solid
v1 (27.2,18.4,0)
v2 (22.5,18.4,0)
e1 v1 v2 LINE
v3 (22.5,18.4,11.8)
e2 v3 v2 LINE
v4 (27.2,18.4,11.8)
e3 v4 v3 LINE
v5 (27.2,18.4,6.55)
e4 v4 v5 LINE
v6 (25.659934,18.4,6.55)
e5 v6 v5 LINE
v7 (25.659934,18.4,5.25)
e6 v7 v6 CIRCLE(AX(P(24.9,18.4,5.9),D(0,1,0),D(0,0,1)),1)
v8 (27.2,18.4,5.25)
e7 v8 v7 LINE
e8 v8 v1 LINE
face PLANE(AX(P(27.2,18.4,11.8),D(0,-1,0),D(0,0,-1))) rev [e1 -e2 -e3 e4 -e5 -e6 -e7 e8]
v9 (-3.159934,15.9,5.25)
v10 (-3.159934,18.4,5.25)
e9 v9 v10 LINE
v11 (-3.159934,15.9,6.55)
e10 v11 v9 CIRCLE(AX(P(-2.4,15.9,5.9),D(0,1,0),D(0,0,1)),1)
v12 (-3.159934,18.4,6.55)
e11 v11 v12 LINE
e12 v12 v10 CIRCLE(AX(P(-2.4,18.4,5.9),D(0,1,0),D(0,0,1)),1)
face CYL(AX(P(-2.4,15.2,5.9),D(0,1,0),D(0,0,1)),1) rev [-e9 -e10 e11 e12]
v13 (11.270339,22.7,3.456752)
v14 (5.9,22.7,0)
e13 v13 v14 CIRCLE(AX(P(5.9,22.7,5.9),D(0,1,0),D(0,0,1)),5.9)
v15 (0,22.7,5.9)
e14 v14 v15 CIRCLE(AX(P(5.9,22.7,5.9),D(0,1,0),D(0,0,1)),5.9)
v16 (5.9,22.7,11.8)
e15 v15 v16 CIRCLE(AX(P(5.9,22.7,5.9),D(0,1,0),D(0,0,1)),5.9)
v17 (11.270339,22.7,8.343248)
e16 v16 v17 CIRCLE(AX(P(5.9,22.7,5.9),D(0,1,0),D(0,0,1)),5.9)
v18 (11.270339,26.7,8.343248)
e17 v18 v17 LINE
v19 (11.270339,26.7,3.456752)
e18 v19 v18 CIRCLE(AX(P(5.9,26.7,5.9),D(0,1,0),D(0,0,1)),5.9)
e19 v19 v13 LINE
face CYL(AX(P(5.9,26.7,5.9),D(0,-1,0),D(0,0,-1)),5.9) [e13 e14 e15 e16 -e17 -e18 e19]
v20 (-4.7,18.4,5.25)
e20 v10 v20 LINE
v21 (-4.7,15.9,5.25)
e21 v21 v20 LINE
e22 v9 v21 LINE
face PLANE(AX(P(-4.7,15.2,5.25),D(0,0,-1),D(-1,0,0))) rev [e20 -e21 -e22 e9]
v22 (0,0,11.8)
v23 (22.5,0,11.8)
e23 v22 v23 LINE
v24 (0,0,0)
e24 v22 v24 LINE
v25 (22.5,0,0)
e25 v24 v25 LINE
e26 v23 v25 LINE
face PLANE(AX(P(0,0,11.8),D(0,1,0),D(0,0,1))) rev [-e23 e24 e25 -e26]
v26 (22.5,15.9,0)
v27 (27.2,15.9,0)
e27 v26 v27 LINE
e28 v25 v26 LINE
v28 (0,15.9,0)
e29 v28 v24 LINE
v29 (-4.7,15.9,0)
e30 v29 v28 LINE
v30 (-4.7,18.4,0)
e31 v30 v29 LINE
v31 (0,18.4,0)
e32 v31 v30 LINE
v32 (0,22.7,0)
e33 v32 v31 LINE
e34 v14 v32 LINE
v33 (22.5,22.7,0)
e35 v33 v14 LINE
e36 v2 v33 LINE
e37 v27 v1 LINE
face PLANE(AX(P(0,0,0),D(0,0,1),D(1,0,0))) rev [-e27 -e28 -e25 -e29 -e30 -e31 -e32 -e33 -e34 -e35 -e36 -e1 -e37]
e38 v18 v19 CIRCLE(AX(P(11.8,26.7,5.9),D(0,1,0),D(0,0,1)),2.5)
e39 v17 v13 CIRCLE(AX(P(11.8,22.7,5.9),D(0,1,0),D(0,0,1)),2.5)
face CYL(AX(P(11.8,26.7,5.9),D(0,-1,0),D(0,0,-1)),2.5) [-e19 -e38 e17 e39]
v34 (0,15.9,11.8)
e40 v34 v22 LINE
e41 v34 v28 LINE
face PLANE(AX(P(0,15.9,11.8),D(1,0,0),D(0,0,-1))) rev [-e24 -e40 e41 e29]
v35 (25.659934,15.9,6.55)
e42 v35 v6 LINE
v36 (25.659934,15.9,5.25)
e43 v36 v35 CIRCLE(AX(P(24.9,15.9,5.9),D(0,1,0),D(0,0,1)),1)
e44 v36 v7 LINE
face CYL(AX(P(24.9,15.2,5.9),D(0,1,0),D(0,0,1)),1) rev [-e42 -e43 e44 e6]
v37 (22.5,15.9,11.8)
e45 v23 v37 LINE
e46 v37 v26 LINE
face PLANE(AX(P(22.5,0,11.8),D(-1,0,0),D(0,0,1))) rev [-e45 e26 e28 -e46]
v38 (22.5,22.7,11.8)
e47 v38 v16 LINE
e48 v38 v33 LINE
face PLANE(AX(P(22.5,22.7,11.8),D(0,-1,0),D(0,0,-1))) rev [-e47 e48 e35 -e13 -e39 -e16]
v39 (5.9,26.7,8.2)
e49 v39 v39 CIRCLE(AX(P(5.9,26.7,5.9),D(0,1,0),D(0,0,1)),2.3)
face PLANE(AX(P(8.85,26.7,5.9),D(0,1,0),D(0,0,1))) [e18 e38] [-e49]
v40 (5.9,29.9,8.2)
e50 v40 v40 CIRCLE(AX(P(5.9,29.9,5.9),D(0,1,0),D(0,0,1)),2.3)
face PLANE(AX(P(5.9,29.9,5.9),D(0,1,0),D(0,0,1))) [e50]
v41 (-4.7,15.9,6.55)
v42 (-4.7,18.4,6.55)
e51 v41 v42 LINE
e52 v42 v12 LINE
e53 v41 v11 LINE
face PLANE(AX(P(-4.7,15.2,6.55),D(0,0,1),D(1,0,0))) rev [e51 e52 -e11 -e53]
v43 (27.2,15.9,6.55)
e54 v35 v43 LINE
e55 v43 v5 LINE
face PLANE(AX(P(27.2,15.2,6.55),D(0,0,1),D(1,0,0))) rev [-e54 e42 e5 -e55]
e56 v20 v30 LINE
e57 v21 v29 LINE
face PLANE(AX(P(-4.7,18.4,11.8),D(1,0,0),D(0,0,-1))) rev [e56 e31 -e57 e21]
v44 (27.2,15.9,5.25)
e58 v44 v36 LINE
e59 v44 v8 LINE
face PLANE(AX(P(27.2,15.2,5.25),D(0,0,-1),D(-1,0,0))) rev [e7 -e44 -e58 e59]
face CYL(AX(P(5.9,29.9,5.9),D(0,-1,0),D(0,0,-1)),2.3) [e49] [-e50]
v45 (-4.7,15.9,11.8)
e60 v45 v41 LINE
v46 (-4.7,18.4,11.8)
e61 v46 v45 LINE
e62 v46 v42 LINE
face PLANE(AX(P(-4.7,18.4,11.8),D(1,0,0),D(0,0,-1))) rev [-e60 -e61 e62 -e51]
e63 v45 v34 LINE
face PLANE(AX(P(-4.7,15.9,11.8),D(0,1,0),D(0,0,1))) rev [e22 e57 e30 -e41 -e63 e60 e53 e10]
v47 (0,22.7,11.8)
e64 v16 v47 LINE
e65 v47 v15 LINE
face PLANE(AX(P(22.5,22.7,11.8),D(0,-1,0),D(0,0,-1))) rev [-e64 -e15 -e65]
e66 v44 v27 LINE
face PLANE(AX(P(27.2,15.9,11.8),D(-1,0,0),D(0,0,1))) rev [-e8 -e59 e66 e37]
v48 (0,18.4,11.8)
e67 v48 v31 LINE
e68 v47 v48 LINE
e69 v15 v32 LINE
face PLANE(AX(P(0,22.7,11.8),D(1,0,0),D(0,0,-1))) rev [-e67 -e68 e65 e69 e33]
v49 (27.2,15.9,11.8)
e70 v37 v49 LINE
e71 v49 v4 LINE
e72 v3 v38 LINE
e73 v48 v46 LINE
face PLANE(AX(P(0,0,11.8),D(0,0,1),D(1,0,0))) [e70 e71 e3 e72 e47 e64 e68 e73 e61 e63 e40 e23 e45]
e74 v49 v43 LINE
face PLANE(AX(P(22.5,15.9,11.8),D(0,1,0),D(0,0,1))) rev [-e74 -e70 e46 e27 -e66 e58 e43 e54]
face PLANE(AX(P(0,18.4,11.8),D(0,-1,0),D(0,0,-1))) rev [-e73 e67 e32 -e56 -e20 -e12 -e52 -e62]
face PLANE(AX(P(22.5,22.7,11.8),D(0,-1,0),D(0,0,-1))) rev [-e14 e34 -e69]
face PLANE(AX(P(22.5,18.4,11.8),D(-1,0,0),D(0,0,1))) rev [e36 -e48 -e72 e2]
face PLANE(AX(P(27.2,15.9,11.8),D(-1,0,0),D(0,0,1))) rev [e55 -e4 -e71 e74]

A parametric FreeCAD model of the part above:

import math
import FreeCAD as App
import Part
import Sketcher
from FreeCAD import Vector
Q = App.Units.Quantity


def add_polygon(sketch, points):
    """Adds a closed chain of lines whose ends are joined by coincident constraints."""
    first, n = sketch.GeometryCount, len(points)
    for a, b in zip(points, points[1:] + points[:1]):
        sketch.addGeometry(Part.LineSegment(App.Vector(*a, 0), App.Vector(*b, 0)), False)
    for i in range(n):
        sketch.addConstraint(Sketcher.Constraint("Coincident", first + i, 2, first + (i + 1) % n, 1))

doc = App.newDocument("Part")
body = doc.addObject("PartDesign::Body", "Body")

# Sketch on XY plane
sketch1 = doc.addObject("Sketcher::SketchObject", "Sketch")
body.addObject(sketch1)
sketch1.AttachmentSupport = (doc.XY_Plane, [""])
sketch1.MapMode = "FlatFace"
add_polygon(sketch1, [(0, 0), (22.5, 0), (22.5, 15.9), (27.2, 15.9), (27.2, 18.4), (22.5, 18.4), (22.5, 22.7), (0, 22.7), (0, 18.4), (-4.7, 18.4), (-4.7, 15.9), (0, 15.9)])  # lines 0-11
sketch1.addConstraint([
    Sketcher.Constraint("Horizontal", 0),
    Sketcher.Constraint("Vertical", 1),
    Sketcher.Constraint("Horizontal", 2),
    Sketcher.Constraint("Vertical", 3),
    Sketcher.Constraint("Horizontal", 4),
    Sketcher.Constraint("Vertical", 5),
    Sketcher.Constraint("Horizontal", 6),
    Sketcher.Constraint("Vertical", 7),
    Sketcher.Constraint("Horizontal", 8),
    Sketcher.Constraint("Vertical", 9),
    Sketcher.Constraint("Horizontal", 10),
    Sketcher.Constraint("Vertical", 11),
    Sketcher.Constraint("Coincident", 11, 2, -1, 1),
    Sketcher.Constraint("PointOnObject", 6, 2, -2),
    Sketcher.Constraint("Horizontal", 4, 2, 7, 2),
    Sketcher.Constraint("Horizontal", 2, 2, 9, 2),
    Sketcher.Constraint("Vertical", 1, 2, 4, 2),
    Sketcher.Constraint("Equal", 4, 8),
    Sketcher.Constraint("DistanceX", 0, 1, 0, 2, Q("22.5 mm")),
    Sketcher.Constraint("DistanceX", 2, 1, 2, 2, Q("4.7 mm")),
    Sketcher.Constraint("DistanceY", 1, 1, 1, 2, Q("15.9 mm")),
    Sketcher.Constraint("DistanceY", 3, 1, 3, 2, Q("2.5 mm")),
    Sketcher.Constraint("DistanceY", 5, 1, 5, 2, Q("4.3 mm")),
])
pad1 = doc.addObject("PartDesign::Pad", "Pad")
body.addObject(pad1)
pad1.Profile = sketch1
pad1.Length = 11.8

# Sketch on XZ plane
sketch2 = doc.addObject("Sketcher::SketchObject", "Sketch001")
body.addObject(sketch2)
sketch2.AttachmentSupport = (doc.XZ_Plane, [""])
sketch2.MapMode = "FlatFace"
sketch2.AttachmentOffset = App.Placement(Vector(0, 0, -22.7), App.Rotation())
sketch2.addGeometry([
    Part.ArcOfCircle(Part.Circle(Vector(5.9, 5.9, 0), Vector(0, 0, 1), 5.9), math.radians(24.463267), math.radians(335.536733)),
    Part.ArcOfCircle(Part.Circle(Vector(11.8, 5.9, 0), Vector(0, 0, 1), 2.5), math.radians(-102.231634), math.radians(102.231634)),
], False)
sketch2.addConstraint([
    Sketcher.Constraint("Coincident", 0, 1, 1, 2),
    Sketcher.Constraint("Coincident", 1, 1, 0, 2),
    Sketcher.Constraint("Horizontal", 0, 3, 1, 3),
    Sketcher.Constraint("Radius", 0, Q("5.9 mm")),
    Sketcher.Constraint("Radius", 1, Q("2.5 mm")),
    Sketcher.Constraint("DistanceX", -1, 1, 0, 3, Q("5.9 mm")),
    Sketcher.Constraint("DistanceY", -1, 1, 0, 3, Q("5.9 mm")),
    Sketcher.Constraint("DistanceX", -1, 1, 1, 3, Q("11.8 mm")),
])
pad2 = doc.addObject("PartDesign::Pad", "Pad001")
body.addObject(pad2)
pad2.Profile = sketch2
pad2.Length = 4
pad2.Reversed = True

# Sketch on XZ plane
sketch3 = doc.addObject("Sketcher::SketchObject", "Sketch002")
body.addObject(sketch3)
sketch3.AttachmentSupport = (doc.XZ_Plane, [""])
sketch3.MapMode = "FlatFace"
sketch3.AttachmentOffset = App.Placement(Vector(0, 0, -26.7), App.Rotation())
sketch3.addGeometry(Part.Circle(Vector(5.9, 5.9, 0), Vector(0, 0, 1), 2.3), False)
sketch3.addConstraint([
    Sketcher.Constraint("Diameter", 0, Q("4.6 mm")),
    Sketcher.Constraint("DistanceX", -1, 1, 0, 3, Q("5.9 mm")),
    Sketcher.Constraint("DistanceY", -1, 1, 0, 3, Q("5.9 mm")),
])
pad3 = doc.addObject("PartDesign::Pad", "Pad002")
body.addObject(pad3)
pad3.Profile = sketch3
pad3.Length = 3.2
pad3.Reversed = True

# Sketch on XZ plane
sketch4 = doc.addObject("Sketcher::SketchObject", "Sketch003")
body.addObject(sketch4)
sketch4.AttachmentSupport = (doc.XZ_Plane, [""])
sketch4.MapMode = "FlatFace"
sketch4.AttachmentOffset = App.Placement(Vector(0, 0, -18.4), App.Rotation())
sketch4.addGeometry([
    Part.LineSegment(Vector(27.2, 5.25, 0), Vector(25.659934, 5.25, 0)),
    Part.ArcOfCircle(Part.Circle(Vector(24.9, 5.9, 0), Vector(0, 0, 1), 1), math.radians(40.541602), math.radians(319.458398)),
    Part.LineSegment(Vector(25.659934, 6.55, 0), Vector(27.2, 6.55, 0)),
    Part.LineSegment(Vector(27.2, 6.55, 0), Vector(27.2, 5.25, 0)),
], False)
sketch4.addConstraint([
    Sketcher.Constraint("Coincident", 0, 2, 1, 2),
    Sketcher.Constraint("Coincident", 1, 1, 2, 1),
    Sketcher.Constraint("Coincident", 2, 2, 3, 1),
    Sketcher.Constraint("Coincident", 3, 2, 0, 1),
    Sketcher.Constraint("Horizontal", 0),
    Sketcher.Constraint("Horizontal", 2),
    Sketcher.Constraint("Vertical", 3),
    Sketcher.Constraint("Vertical", 0, 2, 1, 1),
    Sketcher.Constraint("Radius", 1, Q("1 mm")),
    Sketcher.Constraint("DistanceY", 3, 2, 3, 1, Q("1.3 mm")),
    Sketcher.Constraint("DistanceX", -1, 1, 1, 3, Q("24.9 mm")),
    Sketcher.Constraint("DistanceY", -1, 1, 1, 3, Q("5.9 mm")),
    Sketcher.Constraint("DistanceX", -1, 1, 2, 2, Q("27.2 mm")),
])
pocket1 = doc.addObject("PartDesign::Pocket", "Pocket")
body.addObject(pocket1)
pocket1.Profile = sketch4
pocket1.Length = 3.2
pocket1.Reversed = True

# Sketch on XZ plane
sketch5 = doc.addObject("Sketcher::SketchObject", "Sketch004")
body.addObject(sketch5)
sketch5.AttachmentSupport = (doc.XZ_Plane, [""])
sketch5.MapMode = "FlatFace"
sketch5.AttachmentOffset = App.Placement(Vector(0, 0, -18.4), App.Rotation())
sketch5.addGeometry([
    Part.LineSegment(Vector(-3.159934, 5.25, 0), Vector(-4.7, 5.25, 0)),
    Part.LineSegment(Vector(-4.7, 5.25, 0), Vector(-4.7, 6.55, 0)),
    Part.LineSegment(Vector(-4.7, 6.55, 0), Vector(-3.159934, 6.55, 0)),
    Part.ArcOfCircle(Part.Circle(Vector(-2.4, 5.9, 0), Vector(0, 0, 1), 1), math.radians(-139.458398), math.radians(139.458398)),
], False)
sketch5.addConstraint([
    Sketcher.Constraint("Coincident", 0, 2, 1, 1),
    Sketcher.Constraint("Coincident", 1, 2, 2, 1),
    Sketcher.Constraint("Coincident", 2, 2, 3, 2),
    Sketcher.Constraint("Coincident", 3, 1, 0, 1),
    Sketcher.Constraint("Horizontal", 0),
    Sketcher.Constraint("Vertical", 1),
    Sketcher.Constraint("Horizontal", 2),
    Sketcher.Constraint("Vertical", 2, 2, 3, 1),
    Sketcher.Constraint("Radius", 3, Q("1 mm")),
    Sketcher.Constraint("DistanceY", 1, 1, 1, 2, Q("1.3 mm")),
    Sketcher.Constraint("DistanceX", 3, 3, -1, 1, Q("2.4 mm")),
    Sketcher.Constraint("DistanceY", -1, 1, 3, 3, Q("5.9 mm")),
    Sketcher.Constraint("DistanceX", 0, 2, -1, 1, Q("4.7 mm")),
])
pocket2 = doc.addObject("PartDesign::Pocket", "Pocket001")
body.addObject(pocket2)
pocket2.Profile = sketch5
pocket2.Length = 3.2
pocket2.Reversed = True

doc.recompute()
